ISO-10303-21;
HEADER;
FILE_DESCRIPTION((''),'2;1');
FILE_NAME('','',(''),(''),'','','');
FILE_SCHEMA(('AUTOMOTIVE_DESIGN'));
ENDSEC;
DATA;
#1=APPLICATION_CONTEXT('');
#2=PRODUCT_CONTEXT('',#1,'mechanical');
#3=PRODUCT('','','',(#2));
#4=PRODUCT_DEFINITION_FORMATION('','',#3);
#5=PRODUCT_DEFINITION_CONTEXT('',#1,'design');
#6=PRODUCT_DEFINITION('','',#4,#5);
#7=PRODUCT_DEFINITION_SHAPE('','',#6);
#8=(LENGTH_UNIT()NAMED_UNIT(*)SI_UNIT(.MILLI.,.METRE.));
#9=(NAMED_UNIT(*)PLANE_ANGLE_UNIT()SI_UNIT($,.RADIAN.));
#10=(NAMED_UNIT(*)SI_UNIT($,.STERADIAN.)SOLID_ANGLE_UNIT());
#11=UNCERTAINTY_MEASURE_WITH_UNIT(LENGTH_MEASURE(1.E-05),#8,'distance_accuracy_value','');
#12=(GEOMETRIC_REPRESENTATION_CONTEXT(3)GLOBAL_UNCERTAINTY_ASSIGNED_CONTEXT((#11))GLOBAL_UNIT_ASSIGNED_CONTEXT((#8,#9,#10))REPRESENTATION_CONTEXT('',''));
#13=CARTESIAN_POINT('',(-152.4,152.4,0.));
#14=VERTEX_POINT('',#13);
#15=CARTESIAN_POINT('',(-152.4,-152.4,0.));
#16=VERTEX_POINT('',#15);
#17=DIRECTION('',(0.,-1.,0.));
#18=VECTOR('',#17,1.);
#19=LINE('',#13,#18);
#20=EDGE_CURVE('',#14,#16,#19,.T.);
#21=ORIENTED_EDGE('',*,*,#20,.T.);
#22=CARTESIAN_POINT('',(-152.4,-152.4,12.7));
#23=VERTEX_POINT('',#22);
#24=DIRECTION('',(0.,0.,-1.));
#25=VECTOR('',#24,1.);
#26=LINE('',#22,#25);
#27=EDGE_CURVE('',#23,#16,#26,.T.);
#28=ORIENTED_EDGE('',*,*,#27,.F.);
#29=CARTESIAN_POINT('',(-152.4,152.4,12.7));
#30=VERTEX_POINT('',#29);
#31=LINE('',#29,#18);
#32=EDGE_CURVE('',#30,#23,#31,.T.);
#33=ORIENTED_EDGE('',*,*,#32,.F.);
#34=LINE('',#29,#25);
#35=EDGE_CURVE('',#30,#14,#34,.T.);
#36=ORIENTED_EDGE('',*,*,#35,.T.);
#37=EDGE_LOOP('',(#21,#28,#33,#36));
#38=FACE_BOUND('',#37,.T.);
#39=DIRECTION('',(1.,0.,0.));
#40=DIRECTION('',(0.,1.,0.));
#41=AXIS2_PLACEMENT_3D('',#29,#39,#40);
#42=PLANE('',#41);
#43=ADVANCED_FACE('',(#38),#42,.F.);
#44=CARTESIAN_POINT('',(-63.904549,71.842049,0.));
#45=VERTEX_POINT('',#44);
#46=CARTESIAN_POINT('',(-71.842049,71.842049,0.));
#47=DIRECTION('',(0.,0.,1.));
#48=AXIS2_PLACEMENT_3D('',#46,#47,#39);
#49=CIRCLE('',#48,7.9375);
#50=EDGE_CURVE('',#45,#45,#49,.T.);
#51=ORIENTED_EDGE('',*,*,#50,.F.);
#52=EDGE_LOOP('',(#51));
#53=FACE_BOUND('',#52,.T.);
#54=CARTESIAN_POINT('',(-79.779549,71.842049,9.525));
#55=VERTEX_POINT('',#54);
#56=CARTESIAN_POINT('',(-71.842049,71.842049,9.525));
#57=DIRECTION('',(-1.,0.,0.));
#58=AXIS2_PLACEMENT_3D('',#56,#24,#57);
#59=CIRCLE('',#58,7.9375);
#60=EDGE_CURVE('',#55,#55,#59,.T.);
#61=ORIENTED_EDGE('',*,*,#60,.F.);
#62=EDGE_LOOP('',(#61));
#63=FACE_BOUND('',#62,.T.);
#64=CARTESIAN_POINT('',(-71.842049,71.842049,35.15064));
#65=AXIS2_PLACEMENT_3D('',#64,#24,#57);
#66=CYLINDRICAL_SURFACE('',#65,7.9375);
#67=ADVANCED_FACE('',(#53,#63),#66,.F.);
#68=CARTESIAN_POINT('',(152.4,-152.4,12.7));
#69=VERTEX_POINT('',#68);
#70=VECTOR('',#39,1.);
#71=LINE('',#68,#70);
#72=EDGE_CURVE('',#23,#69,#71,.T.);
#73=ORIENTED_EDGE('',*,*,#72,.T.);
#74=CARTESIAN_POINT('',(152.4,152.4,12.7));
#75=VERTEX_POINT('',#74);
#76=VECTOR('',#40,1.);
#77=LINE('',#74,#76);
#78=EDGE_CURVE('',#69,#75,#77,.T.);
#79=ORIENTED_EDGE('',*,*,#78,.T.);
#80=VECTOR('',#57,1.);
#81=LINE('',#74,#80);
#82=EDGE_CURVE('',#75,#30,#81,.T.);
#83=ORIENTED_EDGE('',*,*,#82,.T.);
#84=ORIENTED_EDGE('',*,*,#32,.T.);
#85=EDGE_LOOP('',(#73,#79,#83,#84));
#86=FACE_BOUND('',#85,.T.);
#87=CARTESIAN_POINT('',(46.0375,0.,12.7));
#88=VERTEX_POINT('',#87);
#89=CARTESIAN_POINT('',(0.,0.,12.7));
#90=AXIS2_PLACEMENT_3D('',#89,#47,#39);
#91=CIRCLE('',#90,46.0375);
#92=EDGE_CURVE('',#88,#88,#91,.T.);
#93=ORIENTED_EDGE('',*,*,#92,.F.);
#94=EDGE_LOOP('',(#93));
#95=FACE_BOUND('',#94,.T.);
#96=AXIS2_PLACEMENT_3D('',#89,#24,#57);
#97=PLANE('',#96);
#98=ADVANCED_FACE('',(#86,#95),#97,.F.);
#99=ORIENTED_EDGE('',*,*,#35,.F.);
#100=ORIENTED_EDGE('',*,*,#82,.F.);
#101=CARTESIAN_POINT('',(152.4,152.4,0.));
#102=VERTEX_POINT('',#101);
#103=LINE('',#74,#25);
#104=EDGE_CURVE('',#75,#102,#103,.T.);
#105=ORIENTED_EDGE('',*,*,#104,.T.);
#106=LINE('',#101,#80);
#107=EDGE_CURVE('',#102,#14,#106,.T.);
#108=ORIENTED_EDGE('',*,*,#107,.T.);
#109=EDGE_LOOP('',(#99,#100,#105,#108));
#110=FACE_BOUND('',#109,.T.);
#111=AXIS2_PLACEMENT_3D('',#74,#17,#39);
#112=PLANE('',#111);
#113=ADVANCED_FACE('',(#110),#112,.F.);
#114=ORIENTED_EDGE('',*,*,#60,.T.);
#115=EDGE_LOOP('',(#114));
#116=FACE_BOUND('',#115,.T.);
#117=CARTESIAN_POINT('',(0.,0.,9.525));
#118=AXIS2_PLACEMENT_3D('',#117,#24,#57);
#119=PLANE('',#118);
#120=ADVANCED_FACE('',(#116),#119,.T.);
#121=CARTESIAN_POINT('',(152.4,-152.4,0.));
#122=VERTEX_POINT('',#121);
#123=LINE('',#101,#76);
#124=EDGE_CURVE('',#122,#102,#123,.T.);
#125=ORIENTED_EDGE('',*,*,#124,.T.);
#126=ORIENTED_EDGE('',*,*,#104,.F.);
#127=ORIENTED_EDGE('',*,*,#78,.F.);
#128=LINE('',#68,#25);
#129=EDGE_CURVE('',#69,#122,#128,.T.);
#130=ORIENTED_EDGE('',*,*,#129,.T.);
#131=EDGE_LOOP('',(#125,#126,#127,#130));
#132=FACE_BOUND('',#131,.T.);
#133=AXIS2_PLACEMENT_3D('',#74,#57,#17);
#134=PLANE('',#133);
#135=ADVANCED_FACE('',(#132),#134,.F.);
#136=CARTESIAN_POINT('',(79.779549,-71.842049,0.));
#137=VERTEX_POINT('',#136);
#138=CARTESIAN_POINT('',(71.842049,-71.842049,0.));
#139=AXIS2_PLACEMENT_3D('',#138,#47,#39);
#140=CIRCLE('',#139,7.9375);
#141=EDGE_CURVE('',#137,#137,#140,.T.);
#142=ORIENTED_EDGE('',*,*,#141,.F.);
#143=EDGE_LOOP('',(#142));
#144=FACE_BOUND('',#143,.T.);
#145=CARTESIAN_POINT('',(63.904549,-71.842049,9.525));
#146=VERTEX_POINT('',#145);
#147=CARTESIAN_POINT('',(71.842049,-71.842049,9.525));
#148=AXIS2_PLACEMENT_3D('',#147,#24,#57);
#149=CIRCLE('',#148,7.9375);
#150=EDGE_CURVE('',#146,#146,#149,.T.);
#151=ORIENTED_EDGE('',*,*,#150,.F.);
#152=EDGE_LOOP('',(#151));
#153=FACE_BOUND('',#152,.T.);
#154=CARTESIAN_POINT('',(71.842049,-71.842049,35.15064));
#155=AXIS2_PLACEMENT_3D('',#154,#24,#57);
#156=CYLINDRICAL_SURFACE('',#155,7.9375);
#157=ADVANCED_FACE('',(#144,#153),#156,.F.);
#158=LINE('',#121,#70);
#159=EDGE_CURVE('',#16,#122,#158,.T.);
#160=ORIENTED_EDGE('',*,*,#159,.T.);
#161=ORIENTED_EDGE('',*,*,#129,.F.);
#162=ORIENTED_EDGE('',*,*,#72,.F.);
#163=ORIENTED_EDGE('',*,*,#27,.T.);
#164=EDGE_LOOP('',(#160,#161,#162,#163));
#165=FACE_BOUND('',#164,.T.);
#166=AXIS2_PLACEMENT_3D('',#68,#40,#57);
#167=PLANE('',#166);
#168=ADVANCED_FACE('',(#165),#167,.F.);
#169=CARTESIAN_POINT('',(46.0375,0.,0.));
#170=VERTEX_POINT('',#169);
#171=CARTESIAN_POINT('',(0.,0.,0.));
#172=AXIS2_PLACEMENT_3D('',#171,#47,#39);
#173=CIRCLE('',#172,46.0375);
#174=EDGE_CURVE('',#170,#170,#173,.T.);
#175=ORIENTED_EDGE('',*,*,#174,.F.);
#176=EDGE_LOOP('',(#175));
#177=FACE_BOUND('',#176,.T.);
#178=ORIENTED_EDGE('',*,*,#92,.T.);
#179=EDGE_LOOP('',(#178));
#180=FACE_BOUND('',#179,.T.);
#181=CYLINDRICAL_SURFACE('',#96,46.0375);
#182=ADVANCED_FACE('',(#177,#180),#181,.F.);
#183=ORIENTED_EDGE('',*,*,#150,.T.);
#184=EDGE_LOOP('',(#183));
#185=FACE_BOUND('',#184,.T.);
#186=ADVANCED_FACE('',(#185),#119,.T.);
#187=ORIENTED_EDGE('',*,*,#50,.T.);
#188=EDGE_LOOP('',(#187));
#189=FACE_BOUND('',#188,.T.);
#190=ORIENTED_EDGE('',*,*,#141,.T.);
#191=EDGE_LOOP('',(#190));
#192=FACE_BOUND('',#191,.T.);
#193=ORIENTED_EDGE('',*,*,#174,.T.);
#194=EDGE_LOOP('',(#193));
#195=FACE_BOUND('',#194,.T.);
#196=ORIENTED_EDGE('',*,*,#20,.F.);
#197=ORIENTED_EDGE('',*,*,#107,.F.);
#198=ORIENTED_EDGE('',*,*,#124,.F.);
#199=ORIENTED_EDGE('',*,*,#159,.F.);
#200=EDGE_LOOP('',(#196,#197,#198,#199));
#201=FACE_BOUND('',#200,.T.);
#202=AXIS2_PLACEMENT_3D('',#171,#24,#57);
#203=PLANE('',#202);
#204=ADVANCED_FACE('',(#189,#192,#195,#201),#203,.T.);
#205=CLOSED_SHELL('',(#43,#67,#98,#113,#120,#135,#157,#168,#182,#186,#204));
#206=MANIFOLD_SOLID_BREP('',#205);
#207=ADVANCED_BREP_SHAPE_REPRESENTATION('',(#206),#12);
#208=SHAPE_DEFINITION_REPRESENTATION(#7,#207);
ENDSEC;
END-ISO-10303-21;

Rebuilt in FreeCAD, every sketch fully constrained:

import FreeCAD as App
import Part
import Sketcher
Q = App.Units.Quantity


def add_polygon(sketch, points):
    """Adds a closed chain of lines whose ends are joined by coincident constraints."""
    first, n = sketch.GeometryCount, len(points)
    for a, b in zip(points, points[1:] + points[:1]):
        sketch.addGeometry(Part.LineSegment(App.Vector(*a, 0), App.Vector(*b, 0)), False)
    for i in range(n):
        sketch.addConstraint(Sketcher.Constraint("Coincident", first + i, 2, first + (i + 1) % n, 1))

doc = App.newDocument("Part")
body = doc.addObject("PartDesign::Body", "Body")

# Sketch on XY plane
sketch1 = body.newObject("Sketcher::SketchObject", "Sketch")
sketch1.AttachmentSupport = (doc.getObject("XY_Plane"), [""])
sketch1.MapMode = "FlatFace"
add_polygon(sketch1, [(-152.4, 152.4), (-152.4, -152.4), (152.4, -152.4), (152.4, 152.4)])  # lines 0-3
sketch1.addGeometry(Part.Circle(App.Vector(0, 0, 0), App.Vector(0, 0, 1), 46.0375), False)  # 4
sketch1.addConstraint(Sketcher.Constraint("Vertical", 0))
sketch1.addConstraint(Sketcher.Constraint("Horizontal", 1))
sketch1.addConstraint(Sketcher.Constraint("Vertical", 2))
sketch1.addConstraint(Sketcher.Constraint("Horizontal", 3))
sketch1.addConstraint(Sketcher.Constraint("Coincident", 4, 3, -1, 1))
sketch1.addConstraint(Sketcher.Constraint("Symmetric", 0, 2, 2, 2, -1, 1))
sketch1.addConstraint(Sketcher.Constraint("Equal", 3, 0))
sketch1.addConstraint(Sketcher.Constraint("DistanceX", 1, 1, 1, 2, Q("12 in")))
sketch1.addConstraint(Sketcher.Constraint("Diameter", 4, Q("3.625 in")))
pad1 = body.newObject("PartDesign::Pad", "Pad")
pad1.Profile = sketch1
pad1.Length = Q("0.5 in")

# Sketch on XY plane
sketch2 = body.newObject("Sketcher::SketchObject", "Sketch001")
sketch2.AttachmentSupport = (doc.getObject("XY_Plane"), [""])
sketch2.MapMode = "FlatFace"
sketch2.addGeometry(Part.Circle(App.Vector(-71.842049, 71.842049, 0), App.Vector(0, 0, 1), 7.9375), False)
sketch2.addGeometry(Part.Circle(App.Vector(71.842049, -71.842049, 0), App.Vector(0, 0, 1), 7.9375), False)
sketch2.addConstraint(Sketcher.Constraint("Equal", 0, 1))
sketch2.addConstraint(Sketcher.Constraint("Symmetric", 0, 3, 1, 3, -1, 1))
sketch2.addConstraint(Sketcher.Constraint("Diameter", 0, Q("0.625 in")))
sketch2.addConstraint(Sketcher.Constraint("DistanceX", 0, 3, -1, 1, 71.842049))
sketch2.addConstraint(Sketcher.Constraint("DistanceY", -1, 1, 0, 3, 71.842049))
pocket1 = body.newObject("PartDesign::Pocket", "Pocket")
pocket1.Profile = sketch2
pocket1.Length = Q("0.375 in")
pocket1.Reversed = True

doc.recompute()
